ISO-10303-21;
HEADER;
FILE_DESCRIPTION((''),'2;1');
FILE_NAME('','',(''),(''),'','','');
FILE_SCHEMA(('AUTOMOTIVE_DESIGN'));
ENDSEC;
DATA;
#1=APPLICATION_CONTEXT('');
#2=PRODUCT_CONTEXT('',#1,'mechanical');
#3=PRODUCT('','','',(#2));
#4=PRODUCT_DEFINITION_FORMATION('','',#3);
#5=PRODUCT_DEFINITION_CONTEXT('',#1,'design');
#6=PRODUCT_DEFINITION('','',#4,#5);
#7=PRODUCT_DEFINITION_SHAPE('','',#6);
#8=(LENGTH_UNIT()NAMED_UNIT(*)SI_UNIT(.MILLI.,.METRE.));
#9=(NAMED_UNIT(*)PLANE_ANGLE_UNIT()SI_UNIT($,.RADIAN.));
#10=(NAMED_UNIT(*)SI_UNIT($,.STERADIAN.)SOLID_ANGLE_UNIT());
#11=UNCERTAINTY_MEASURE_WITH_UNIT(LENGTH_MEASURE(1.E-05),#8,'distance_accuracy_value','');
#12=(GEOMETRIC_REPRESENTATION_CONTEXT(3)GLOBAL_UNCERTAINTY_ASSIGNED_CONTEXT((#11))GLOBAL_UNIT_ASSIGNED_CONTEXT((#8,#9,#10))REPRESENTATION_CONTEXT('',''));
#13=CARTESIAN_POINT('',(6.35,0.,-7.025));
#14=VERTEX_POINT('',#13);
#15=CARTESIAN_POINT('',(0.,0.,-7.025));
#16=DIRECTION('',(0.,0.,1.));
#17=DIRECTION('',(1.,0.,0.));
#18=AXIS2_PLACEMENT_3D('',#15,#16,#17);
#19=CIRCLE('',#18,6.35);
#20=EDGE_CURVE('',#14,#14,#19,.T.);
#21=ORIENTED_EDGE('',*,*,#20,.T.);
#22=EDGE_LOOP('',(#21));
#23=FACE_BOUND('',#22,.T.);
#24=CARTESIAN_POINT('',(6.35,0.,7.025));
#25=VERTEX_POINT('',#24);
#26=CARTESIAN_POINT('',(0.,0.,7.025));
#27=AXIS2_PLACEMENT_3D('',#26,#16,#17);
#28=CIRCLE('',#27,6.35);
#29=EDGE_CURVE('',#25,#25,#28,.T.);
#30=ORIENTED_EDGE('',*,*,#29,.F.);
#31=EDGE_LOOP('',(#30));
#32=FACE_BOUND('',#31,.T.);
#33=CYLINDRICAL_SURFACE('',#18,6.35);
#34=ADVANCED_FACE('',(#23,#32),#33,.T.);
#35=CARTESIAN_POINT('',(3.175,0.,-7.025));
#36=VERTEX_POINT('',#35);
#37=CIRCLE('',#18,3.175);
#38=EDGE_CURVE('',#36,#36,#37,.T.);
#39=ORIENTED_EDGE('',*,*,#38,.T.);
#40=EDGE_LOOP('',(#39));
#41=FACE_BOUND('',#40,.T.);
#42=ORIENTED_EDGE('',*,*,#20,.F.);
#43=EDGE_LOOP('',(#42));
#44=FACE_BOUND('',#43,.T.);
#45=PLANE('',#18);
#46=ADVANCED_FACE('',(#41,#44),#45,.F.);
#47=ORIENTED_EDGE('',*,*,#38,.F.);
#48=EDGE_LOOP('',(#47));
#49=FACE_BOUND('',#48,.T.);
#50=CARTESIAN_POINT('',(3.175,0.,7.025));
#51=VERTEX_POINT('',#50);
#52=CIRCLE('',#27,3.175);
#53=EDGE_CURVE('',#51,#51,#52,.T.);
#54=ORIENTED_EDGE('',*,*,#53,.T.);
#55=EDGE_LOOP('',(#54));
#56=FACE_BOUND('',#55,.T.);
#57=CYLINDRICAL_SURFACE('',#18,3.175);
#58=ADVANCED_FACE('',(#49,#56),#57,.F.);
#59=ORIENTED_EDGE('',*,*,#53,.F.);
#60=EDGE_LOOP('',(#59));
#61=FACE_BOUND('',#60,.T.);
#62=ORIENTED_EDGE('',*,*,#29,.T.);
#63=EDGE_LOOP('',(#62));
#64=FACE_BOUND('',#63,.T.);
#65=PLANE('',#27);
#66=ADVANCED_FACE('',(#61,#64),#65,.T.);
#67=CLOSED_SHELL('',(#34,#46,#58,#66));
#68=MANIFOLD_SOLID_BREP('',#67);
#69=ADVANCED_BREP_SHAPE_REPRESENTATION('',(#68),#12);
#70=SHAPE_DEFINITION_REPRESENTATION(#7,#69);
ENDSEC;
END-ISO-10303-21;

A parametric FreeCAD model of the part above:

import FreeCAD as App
import Part
import Sketcher

V = App.Vector
Q = App.Units.Quantity

doc = App.newDocument("Part")
body = doc.addObject("PartDesign::Body", "Body")

# Sketch on XY plane
sketch1 = body.newObject("Sketcher::SketchObject", "Sketch")
sketch1.AttachmentSupport = (doc.getObject("XY_Plane"), [""])
sketch1.MapMode = "FlatFace"
sketch1.addGeometry(Part.Circle(V(0, 0, 0), V(0, 0, 1), 6), False)
sketch1.addConstraint(Sketcher.Constraint("Coincident", 0, 3, -1, 1))
sketch1.addConstraint(Sketcher.Constraint("Diameter", 0, Q("0.5 in")))
pad1 = body.newObject("PartDesign::Pad", "Pad")
pad1.Profile = sketch1
pad1.Type = "TwoLengths"
pad1.Length = 7.025
pad1.Length2 = 7.025

# Sketch on XY plane
sketch2 = body.newObject("Sketcher::SketchObject", "Sketch001")
sketch2.AttachmentSupport = (doc.getObject("XY_Plane"), [""])
sketch2.MapMode = "FlatFace"
sketch2.AttachmentOffset = App.Placement(V(0, 0, 7.025), App.Rotation())
sketch2.addGeometry(Part.Circle(V(0, 0, 0), V(0, 0, 1), 3.2), False)
sketch2.addConstraint(Sketcher.Constraint("Coincident", 0, 3, -1, 1))
sketch2.addConstraint(Sketcher.Constraint("Diameter", 0, Q("0.25 in")))
pocket1 = body.newObject("PartDesign::Pocket", "Pocket")
pocket1.Profile = sketch2
pocket1.Type = "ThroughAll"

doc.recompute()
